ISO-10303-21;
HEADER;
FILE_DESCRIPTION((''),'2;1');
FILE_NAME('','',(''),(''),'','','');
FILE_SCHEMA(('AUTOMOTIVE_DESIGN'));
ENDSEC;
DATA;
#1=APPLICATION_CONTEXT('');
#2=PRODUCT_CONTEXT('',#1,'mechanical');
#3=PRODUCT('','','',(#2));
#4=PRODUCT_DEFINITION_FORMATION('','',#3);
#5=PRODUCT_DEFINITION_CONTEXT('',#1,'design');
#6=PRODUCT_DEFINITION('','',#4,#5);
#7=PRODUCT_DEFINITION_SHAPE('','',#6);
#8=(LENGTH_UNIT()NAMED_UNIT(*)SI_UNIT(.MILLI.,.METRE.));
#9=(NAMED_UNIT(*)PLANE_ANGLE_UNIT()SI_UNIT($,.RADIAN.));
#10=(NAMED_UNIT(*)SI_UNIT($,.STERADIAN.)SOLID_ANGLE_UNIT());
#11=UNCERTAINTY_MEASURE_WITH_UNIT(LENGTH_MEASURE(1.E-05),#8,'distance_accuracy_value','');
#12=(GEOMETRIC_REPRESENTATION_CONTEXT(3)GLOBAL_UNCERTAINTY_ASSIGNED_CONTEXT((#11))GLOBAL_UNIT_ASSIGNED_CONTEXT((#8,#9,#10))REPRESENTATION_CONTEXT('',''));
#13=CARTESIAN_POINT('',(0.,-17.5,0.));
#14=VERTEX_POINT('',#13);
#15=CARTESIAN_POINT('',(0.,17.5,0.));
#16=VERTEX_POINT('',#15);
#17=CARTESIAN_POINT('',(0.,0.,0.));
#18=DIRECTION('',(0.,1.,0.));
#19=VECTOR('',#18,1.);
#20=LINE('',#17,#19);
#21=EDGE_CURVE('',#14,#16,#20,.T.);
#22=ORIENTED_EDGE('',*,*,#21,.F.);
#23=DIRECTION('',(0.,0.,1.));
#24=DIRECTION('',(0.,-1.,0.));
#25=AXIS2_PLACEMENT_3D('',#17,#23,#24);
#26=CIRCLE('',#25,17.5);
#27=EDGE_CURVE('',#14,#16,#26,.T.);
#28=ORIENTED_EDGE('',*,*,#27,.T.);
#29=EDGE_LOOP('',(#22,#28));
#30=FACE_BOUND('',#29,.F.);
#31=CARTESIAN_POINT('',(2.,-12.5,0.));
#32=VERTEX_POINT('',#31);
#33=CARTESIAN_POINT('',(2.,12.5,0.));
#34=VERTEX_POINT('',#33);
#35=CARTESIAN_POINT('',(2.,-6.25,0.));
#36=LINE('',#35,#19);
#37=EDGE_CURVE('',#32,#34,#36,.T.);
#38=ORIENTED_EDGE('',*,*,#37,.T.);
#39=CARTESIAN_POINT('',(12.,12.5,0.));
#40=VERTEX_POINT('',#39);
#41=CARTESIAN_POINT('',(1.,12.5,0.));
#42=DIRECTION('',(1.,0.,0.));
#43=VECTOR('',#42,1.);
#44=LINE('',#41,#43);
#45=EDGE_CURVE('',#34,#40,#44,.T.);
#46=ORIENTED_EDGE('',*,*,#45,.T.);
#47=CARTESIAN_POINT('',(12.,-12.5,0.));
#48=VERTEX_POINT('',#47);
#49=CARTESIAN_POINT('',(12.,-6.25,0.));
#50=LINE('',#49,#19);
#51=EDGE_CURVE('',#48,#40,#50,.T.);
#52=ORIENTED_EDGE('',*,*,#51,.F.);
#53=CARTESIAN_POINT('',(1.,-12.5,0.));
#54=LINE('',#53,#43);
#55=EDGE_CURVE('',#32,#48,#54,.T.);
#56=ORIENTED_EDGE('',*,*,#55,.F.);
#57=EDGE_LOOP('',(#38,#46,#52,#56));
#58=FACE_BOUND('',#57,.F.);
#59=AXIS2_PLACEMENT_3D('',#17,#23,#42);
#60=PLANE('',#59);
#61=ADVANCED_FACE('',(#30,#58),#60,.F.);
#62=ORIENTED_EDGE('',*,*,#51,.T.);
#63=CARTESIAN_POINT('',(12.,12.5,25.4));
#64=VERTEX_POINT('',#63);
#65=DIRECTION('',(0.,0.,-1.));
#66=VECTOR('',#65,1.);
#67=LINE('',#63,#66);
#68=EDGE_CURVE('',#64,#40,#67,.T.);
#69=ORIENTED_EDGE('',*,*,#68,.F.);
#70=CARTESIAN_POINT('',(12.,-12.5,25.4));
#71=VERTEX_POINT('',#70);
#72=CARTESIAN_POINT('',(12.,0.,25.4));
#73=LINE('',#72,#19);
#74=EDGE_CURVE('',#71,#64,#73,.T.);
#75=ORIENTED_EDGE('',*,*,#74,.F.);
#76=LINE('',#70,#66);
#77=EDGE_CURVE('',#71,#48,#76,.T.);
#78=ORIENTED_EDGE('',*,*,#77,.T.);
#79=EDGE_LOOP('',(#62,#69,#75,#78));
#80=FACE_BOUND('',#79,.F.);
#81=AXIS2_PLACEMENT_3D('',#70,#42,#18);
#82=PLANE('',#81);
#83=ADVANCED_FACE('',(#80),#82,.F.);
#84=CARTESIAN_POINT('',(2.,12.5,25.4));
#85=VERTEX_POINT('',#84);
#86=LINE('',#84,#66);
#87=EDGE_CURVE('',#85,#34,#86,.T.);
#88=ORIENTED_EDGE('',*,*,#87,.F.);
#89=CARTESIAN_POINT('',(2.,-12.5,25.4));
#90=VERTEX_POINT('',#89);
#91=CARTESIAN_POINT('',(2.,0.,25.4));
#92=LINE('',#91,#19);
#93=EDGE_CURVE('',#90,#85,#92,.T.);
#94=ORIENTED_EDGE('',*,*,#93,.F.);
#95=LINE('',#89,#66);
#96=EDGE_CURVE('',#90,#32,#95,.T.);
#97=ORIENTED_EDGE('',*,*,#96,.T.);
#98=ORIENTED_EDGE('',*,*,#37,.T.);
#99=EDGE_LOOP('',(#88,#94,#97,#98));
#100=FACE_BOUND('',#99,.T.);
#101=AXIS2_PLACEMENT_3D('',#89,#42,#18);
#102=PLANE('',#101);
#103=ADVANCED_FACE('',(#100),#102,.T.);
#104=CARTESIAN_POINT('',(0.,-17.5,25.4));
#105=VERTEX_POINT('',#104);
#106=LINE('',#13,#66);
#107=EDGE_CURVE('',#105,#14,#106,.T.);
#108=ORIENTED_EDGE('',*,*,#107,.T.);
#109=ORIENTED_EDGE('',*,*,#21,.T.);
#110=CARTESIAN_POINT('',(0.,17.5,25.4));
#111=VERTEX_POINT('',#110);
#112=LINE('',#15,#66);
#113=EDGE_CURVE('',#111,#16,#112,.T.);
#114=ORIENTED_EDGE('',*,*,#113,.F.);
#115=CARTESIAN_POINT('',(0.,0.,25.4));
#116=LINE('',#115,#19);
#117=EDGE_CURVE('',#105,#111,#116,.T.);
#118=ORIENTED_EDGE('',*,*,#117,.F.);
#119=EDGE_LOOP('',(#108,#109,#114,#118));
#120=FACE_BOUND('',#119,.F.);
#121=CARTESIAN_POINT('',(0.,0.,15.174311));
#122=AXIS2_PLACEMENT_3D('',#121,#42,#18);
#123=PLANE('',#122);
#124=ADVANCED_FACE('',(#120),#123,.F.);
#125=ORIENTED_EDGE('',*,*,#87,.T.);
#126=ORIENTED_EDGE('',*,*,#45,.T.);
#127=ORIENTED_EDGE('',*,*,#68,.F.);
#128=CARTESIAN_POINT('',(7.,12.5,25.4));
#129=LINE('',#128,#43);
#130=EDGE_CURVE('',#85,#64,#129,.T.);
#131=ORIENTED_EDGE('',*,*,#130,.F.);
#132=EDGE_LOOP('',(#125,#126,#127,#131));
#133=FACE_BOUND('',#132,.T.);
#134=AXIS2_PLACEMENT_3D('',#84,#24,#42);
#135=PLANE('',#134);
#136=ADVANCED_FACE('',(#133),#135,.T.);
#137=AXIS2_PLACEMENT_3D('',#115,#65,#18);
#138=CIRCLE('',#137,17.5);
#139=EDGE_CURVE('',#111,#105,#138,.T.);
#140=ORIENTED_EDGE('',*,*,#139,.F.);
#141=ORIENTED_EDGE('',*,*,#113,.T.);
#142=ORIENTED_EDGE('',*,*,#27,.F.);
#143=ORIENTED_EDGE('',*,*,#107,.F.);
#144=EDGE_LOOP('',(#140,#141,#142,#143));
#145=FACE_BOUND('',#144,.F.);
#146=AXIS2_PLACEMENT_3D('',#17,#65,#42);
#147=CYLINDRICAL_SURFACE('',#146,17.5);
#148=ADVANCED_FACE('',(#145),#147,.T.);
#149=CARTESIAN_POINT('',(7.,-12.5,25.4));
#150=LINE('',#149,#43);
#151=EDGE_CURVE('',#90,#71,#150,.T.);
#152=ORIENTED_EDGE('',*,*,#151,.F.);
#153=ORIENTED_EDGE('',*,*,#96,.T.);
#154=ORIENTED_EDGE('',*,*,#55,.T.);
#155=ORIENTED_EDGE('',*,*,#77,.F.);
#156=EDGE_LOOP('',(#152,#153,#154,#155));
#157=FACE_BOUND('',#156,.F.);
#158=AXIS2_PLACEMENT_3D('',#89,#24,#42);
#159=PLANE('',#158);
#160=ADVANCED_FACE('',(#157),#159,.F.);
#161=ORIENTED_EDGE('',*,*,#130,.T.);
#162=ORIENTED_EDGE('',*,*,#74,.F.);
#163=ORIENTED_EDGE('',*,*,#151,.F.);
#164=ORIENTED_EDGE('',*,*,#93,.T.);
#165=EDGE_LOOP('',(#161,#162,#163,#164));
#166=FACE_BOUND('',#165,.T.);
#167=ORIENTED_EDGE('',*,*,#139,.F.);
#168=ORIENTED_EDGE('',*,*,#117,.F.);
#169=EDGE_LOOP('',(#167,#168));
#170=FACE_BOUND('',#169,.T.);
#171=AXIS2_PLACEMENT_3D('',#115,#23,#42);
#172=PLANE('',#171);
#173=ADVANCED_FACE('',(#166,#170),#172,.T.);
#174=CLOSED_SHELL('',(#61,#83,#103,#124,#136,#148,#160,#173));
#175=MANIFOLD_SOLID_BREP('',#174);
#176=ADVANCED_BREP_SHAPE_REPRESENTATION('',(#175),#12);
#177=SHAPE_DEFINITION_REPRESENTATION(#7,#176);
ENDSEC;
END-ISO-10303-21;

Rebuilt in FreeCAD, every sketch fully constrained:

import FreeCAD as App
import Part
import Sketcher
Q = App.Units.Quantity

doc = App.newDocument("Part")
body = doc.addObject("PartDesign::Body", "Body")

# Sketch on XY plane
sketch1 = body.newObject("Sketcher::SketchObject", "Sketch")
sketch1.AttachmentSupport = (doc.getObject("XY_Plane"), [""])
sketch1.MapMode = "FlatFace"
sketch1.addGeometry(Part.Circle(App.Vector(0, 0, 0), App.Vector(0, 0, 1), 18), False)
sketch1.addConstraint([
    Sketcher.Constraint("Coincident", 0, 3, -1, 1),
    Sketcher.Constraint("Diameter", 0, Q("35 mm")),
])
pad1 = body.newObject("PartDesign::Pad", "Pad")
pad1.Profile = sketch1
pad1.Length = 25.4

# Sketch on YZ plane
sketch2 = body.newObject("Sketcher::SketchObject", "Sketch001")
sketch2.AttachmentSupport = (doc.getObject("YZ_Plane"), [""])
sketch2.MapMode = "FlatFace"
sketch2.addGeometry([
    Part.LineSegment(App.Vector(-30, 37, 0), App.Vector(-30, -6, 0)),
    Part.LineSegment(App.Vector(-30, -6, 0), App.Vector(30, -6, 0)),
    Part.LineSegment(App.Vector(30, -6, 0), App.Vector(30, 37, 0)),
    Part.LineSegment(App.Vector(30, 37, 0), App.Vector(-30, 37, 0)),
], False)
sketch2.addConstraint([
    Sketcher.Constraint("Coincident", 0, 2, 1, 1),
    Sketcher.Constraint("Coincident", 1, 2, 2, 1),
    Sketcher.Constraint("Coincident", 2, 2, 3, 1),
    Sketcher.Constraint("Coincident", 3, 2, 0, 1),
    Sketcher.Constraint("Vertical", 0),
    Sketcher.Constraint("Horizontal", 1),
    Sketcher.Constraint("Vertical", 2),
    Sketcher.Constraint("Horizontal", 3),
    Sketcher.Constraint("DistanceY", 0, 2, 0, 1, Q("43.169699 mm")),
    Sketcher.Constraint("DistanceX", 1, 1, 1, 2, Q("60.77839 mm")),
    Sketcher.Constraint("DistanceY", 0, 2, -1, 1, Q("6.410539 mm")),
    Sketcher.Constraint("DistanceX", 0, 2, -1, 1, Q("30.389195 mm")),
])
pocket1 = body.newObject("PartDesign::Pocket", "Pocket")
pocket1.Profile = sketch2
pocket1.Length = 25.4

# Sketch on XY plane
sketch3 = body.newObject("Sketcher::SketchObject", "Sketch002")
sketch3.AttachmentSupport = (doc.getObject("XY_Plane"), [""])
sketch3.MapMode = "FlatFace"
sketch3.AttachmentOffset = App.Placement(App.Vector(0, 0, 25.4), App.Rotation())
sketch3.addGeometry([
    Part.LineSegment(App.Vector(2, 12, 0), App.Vector(2, -12, 0)),
    Part.LineSegment(App.Vector(2, -12, 0), App.Vector(12, -12, 0)),
    Part.LineSegment(App.Vector(12, -12, 0), App.Vector(12, 12, 0)),
    Part.LineSegment(App.Vector(12, 12, 0), App.Vector(2, 12, 0)),
], False)
sketch3.addConstraint([
    Sketcher.Constraint("Coincident", 0, 2, 1, 1),
    Sketcher.Constraint("Coincident", 1, 2, 2, 1),
    Sketcher.Constraint("Coincident", 2, 2, 3, 1),
    Sketcher.Constraint("Coincident", 3, 2, 0, 1),
    Sketcher.Constraint("Vertical", 0),
    Sketcher.Constraint("Horizontal", 1),
    Sketcher.Constraint("Vertical", 2),
    Sketcher.Constraint("Horizontal", 3),
    Sketcher.Constraint("DistanceX", 1, 1, 1, 2, Q("10 mm")),
    Sketcher.Constraint("DistanceY", 0, 2, 0, 1, Q("25 mm")),
    Sketcher.Constraint("DistanceX", -1, 1, 0, 2, Q("2 mm")),
    Sketcher.Constraint("DistanceY", 0, 2, -1, 1, Q("12.5 mm")),
])
pocket2 = body.newObject("PartDesign::Pocket", "Pocket001")
pocket2.Profile = sketch3
pocket2.Length = 40

doc.recompute()
